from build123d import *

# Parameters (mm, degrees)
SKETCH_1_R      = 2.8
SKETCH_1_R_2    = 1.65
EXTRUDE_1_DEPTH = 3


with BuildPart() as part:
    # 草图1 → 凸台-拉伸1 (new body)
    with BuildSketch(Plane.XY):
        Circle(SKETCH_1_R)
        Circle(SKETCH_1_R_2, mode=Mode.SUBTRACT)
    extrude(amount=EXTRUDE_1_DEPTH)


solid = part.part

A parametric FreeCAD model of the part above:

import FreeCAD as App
import Part
import Sketcher
Q = App.Units.Quantity

doc = App.newDocument("Part")
body = doc.addObject("PartDesign::Body", "Body")

# Sketch on XY plane
sketch1 = body.newObject("Sketcher::SketchObject", "Sketch")
sketch1.AttachmentSupport = (doc.getObject("XY_Plane"), [""])
sketch1.MapMode = "FlatFace"
sketch1.addGeometry([
    Part.Circle(App.Vector(0, 0, 0), App.Vector(0, 0, 1), 2.8),
    Part.Circle(App.Vector(0, 0, 0), App.Vector(0, 0, 1), 1.6),
], False)
sketch1.addConstraint([
    Sketcher.Constraint("Coincident", 0, 3, -1, 1),
    Sketcher.Constraint("Coincident", 1, 3, -1, 1),
    Sketcher.Constraint("Diameter", 0, Q("5.6 mm")),
    Sketcher.Constraint("Diameter", 1, Q("3.3 mm")),
])
pad1 = body.newObject("PartDesign::Pad", "Pad")
pad1.Profile = sketch1
pad1.Length = 3

doc.recompute()
